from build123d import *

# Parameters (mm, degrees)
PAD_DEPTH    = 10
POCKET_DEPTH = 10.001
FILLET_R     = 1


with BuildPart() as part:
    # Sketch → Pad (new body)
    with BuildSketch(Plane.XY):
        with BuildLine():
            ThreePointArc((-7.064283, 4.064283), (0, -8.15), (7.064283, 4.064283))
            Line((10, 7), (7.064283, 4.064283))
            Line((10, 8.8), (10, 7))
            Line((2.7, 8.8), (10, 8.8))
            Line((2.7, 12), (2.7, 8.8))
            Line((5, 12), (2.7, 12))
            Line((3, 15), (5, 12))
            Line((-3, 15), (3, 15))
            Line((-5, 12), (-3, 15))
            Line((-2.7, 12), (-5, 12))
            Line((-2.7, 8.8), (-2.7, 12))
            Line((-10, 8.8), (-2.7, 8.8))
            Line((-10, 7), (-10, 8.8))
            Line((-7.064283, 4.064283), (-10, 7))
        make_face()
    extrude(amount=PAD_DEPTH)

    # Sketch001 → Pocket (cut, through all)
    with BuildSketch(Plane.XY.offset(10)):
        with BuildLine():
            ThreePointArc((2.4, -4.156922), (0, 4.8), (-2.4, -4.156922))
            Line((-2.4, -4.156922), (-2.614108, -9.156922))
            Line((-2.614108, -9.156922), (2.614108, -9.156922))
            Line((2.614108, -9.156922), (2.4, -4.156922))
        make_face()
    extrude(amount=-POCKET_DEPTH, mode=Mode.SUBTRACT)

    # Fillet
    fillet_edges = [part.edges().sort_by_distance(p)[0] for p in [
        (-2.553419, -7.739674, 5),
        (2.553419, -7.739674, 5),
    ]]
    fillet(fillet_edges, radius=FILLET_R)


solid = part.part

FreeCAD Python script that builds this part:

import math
import FreeCAD as App
import Part
import Sketcher

V = App.Vector
Q = App.Units.Quantity


def edges_at(feature, points):
    """Names of the edges that pass closest to the given points."""
    edges = feature.Shape.Edges
    near = lambda p: min(range(len(edges)), key=lambda i: edges[i].distToShape(Part.Vertex(*p))[0])
    return sorted({f"Edge{near(p) + 1}" for p in points})

doc = App.newDocument("Part")
body = doc.addObject("PartDesign::Body", "Body")

sketch1 = body.newObject("Sketcher::SketchObject", "Sketch")
sketch1.AttachmentSupport = (doc.getObject("XY_Plane"), [""])
sketch1.MapMode = "FlatFace"
sketch1.addGeometry(Part.ArcOfCircle(Part.Circle(V(0, 0, 0), V(0, 0, 1), 8.15), math.radians(150.086955), math.radians(389.913045)), False)
sketch1.addGeometry(Part.LineSegment(V(7.064283, 4.064283, 0), V(10, 7, 0)), False)
sketch1.addGeometry(Part.LineSegment(V(10, 7, 0), V(10, 8.8, 0)), False)
sketch1.addGeometry(Part.LineSegment(V(10, 8.8, 0), V(2.7, 8.8, 0)), False)
sketch1.addGeometry(Part.LineSegment(V(2.7, 8.8, 0), V(2.7, 12, 0)), False)
sketch1.addGeometry(Part.LineSegment(V(2.7, 12, 0), V(5, 12, 0)), False)
sketch1.addGeometry(Part.LineSegment(V(5, 12, 0), V(3, 15, 0)), False)
sketch1.addGeometry(Part.LineSegment(V(3, 15, 0), V(-3, 15, 0)), False)
sketch1.addGeometry(Part.LineSegment(V(-3, 15, 0), V(-5, 12, 0)), False)
sketch1.addGeometry(Part.LineSegment(V(-5, 12, 0), V(-2.7, 12, 0)), False)
sketch1.addGeometry(Part.LineSegment(V(-2.7, 12, 0), V(-2.7, 8.8, 0)), False)
sketch1.addGeometry(Part.LineSegment(V(-2.7, 8.8, 0), V(-10, 8.8, 0)), False)
sketch1.addGeometry(Part.LineSegment(V(-10, 8.8, 0), V(-10, 7, 0)), False)
sketch1.addGeometry(Part.LineSegment(V(-10, 7, 0), V(-7.064283, 4.064283, 0)), False)
sketch1.addConstraint(Sketcher.Constraint("Coincident", 0, 2, 1, 1))
sketch1.addConstraint(Sketcher.Constraint("Coincident", 1, 2, 2, 1))
sketch1.addConstraint(Sketcher.Constraint("Coincident", 2, 2, 3, 1))
sketch1.addConstraint(Sketcher.Constraint("Coincident", 3, 2, 4, 1))
sketch1.addConstraint(Sketcher.Constraint("Coincident", 4, 2, 5, 1))
sketch1.addConstraint(Sketcher.Constraint("Coincident", 5, 2, 6, 1))
sketch1.addConstraint(Sketcher.Constraint("Coincident", 6, 2, 7, 1))
sketch1.addConstraint(Sketcher.Constraint("Coincident", 7, 2, 8, 1))
sketch1.addConstraint(Sketcher.Constraint("Coincident", 8, 2, 9, 1))
sketch1.addConstraint(Sketcher.Constraint("Coincident", 9, 2, 10, 1))
sketch1.addConstraint(Sketcher.Constraint("Coincident", 10, 2, 11, 1))
sketch1.addConstraint(Sketcher.Constraint("Coincident", 11, 2, 12, 1))
sketch1.addConstraint(Sketcher.Constraint("Coincident", 12, 2, 13, 1))
sketch1.addConstraint(Sketcher.Constraint("Coincident", 13, 2, 0, 1))
sketch1.addConstraint(Sketcher.Constraint("Vertical", 2))
sketch1.addConstraint(Sketcher.Constraint("Horizontal", 3))
sketch1.addConstraint(Sketcher.Constraint("Vertical", 4))
sketch1.addConstraint(Sketcher.Constraint("Horizontal", 5))
sketch1.addConstraint(Sketcher.Constraint("Horizontal", 7))
sketch1.addConstraint(Sketcher.Constraint("Horizontal", 9))
sketch1.addConstraint(Sketcher.Constraint("Vertical", 10))
sketch1.addConstraint(Sketcher.Constraint("Horizontal", 11))
sketch1.addConstraint(Sketcher.Constraint("Vertical", 12))
sketch1.addConstraint(Sketcher.Constraint("Coincident", 0, 3, -1, 1))
sketch1.addConstraint(Sketcher.Constraint("Symmetric", 5, 2, 8, 2, -2))
sketch1.addConstraint(Sketcher.Constraint("Symmetric", 3, 2, 10, 2, -2))
sketch1.addConstraint(Sketcher.Constraint("Symmetric", 1, 2, 12, 2, -2))
sketch1.addConstraint(Sketcher.Constraint("Perpendicular", 1, 13))
sketch1.addConstraint(Sketcher.Constraint("Horizontal", 0, 2, 13, 2))
sketch1.addConstraint(Sketcher.Constraint("Equal", 6, 8))
sketch1.addConstraint(Sketcher.Constraint("DistanceX", 7, 2, 7, 1, Q("6 mm")))
sketch1.addConstraint(Sketcher.Constraint("Radius", 0, Q("8.15 mm")))
sketch1.addConstraint(Sketcher.Constraint("DistanceX", 3, 2, 3, 1, Q("7.3 mm")))
sketch1.addConstraint(Sketcher.Constraint("DistanceX", 5, 1, 5, 2, Q("2.3 mm")))
sketch1.addConstraint(Sketcher.Constraint("DistanceY", 2, 1, 2, 2, Q("1.8 mm")))
sketch1.addConstraint(Sketcher.Constraint("DistanceY", 4, 1, 4, 2, Q("3.2 mm")))
sketch1.addConstraint(Sketcher.Constraint("DistanceX", -1, 1, 1, 2, Q("10 mm")))
sketch1.addConstraint(Sketcher.Constraint("DistanceY", -1, 1, 1, 2, Q("7 mm")))
sketch1.addConstraint(Sketcher.Constraint("DistanceY", -1, 1, 6, 2, Q("15 mm")))
pad1 = body.newObject("PartDesign::Pad", "Pad")
pad1.Profile = sketch1
pad1.Length = 10

sketch2 = body.newObject("Sketcher::SketchObject", "Sketch001")
sketch2.AttachmentSupport = (doc.getObject("XY_Plane"), [""])
sketch2.MapMode = "FlatFace"
sketch2.AttachmentOffset = App.Placement(V(0, 0, 10), App.Rotation())
sketch2.addGeometry(Part.ArcOfCircle(Part.Circle(V(0, 0, 0), V(0, 0, 1), 4.8), math.radians(-60), math.radians(240)), False)
sketch2.addGeometry(Part.LineSegment(V(-2.4, -4.156922, 0), V(-2.614108, -9.156922, 0)), False)
sketch2.addGeometry(Part.LineSegment(V(-2.614108, -9.156922, 0), V(2.614108, -9.156922, 0)), False)
sketch2.addGeometry(Part.LineSegment(V(2.614108, -9.156922, 0), V(2.4, -4.156922, 0)), False)
sketch2.addConstraint(Sketcher.Constraint("Coincident", 0, 2, 1, 1))
sketch2.addConstraint(Sketcher.Constraint("Coincident", 1, 2, 2, 1))
sketch2.addConstraint(Sketcher.Constraint("Coincident", 2, 2, 3, 1))
sketch2.addConstraint(Sketcher.Constraint("Coincident", 3, 2, 0, 1))
sketch2.addConstraint(Sketcher.Constraint("Horizontal", 2))
sketch2.addConstraint(Sketcher.Constraint("Coincident", 0, 3, -1, 1))
sketch2.addConstraint(Sketcher.Constraint("Horizontal", 0, 2, 3, 2))
sketch2.addConstraint(Sketcher.Constraint("Equal", 1, 3))
sketch2.addConstraint(Sketcher.Constraint("Radius", 0, Q("4.8 mm")))
sketch2.addConstraint(Sketcher.Constraint("DistanceY", 1, 2, 0, 2, Q("5 mm")))
sketch2.addConstraint(Sketcher.Constraint("DistanceX", 0, 2, -1, 1, Q("2.4 mm")))
sketch2.addConstraint(Sketcher.Constraint("DistanceX", 2, 1, 2, 2, Q("5.228216 mm")))
pocket1 = body.newObject("PartDesign::Pocket", "Pocket")
pocket1.Profile = sketch2
pocket1.Type = "ThroughAll"
doc.recompute()

fillet = body.newObject("PartDesign::Fillet", "Fillet")
fillet.Base = (pocket1, edges_at(pocket1, [(-2.553, -7.74, 5), (2.553, -7.74, 5)]))
fillet.Radius = 1

doc.recompute()
